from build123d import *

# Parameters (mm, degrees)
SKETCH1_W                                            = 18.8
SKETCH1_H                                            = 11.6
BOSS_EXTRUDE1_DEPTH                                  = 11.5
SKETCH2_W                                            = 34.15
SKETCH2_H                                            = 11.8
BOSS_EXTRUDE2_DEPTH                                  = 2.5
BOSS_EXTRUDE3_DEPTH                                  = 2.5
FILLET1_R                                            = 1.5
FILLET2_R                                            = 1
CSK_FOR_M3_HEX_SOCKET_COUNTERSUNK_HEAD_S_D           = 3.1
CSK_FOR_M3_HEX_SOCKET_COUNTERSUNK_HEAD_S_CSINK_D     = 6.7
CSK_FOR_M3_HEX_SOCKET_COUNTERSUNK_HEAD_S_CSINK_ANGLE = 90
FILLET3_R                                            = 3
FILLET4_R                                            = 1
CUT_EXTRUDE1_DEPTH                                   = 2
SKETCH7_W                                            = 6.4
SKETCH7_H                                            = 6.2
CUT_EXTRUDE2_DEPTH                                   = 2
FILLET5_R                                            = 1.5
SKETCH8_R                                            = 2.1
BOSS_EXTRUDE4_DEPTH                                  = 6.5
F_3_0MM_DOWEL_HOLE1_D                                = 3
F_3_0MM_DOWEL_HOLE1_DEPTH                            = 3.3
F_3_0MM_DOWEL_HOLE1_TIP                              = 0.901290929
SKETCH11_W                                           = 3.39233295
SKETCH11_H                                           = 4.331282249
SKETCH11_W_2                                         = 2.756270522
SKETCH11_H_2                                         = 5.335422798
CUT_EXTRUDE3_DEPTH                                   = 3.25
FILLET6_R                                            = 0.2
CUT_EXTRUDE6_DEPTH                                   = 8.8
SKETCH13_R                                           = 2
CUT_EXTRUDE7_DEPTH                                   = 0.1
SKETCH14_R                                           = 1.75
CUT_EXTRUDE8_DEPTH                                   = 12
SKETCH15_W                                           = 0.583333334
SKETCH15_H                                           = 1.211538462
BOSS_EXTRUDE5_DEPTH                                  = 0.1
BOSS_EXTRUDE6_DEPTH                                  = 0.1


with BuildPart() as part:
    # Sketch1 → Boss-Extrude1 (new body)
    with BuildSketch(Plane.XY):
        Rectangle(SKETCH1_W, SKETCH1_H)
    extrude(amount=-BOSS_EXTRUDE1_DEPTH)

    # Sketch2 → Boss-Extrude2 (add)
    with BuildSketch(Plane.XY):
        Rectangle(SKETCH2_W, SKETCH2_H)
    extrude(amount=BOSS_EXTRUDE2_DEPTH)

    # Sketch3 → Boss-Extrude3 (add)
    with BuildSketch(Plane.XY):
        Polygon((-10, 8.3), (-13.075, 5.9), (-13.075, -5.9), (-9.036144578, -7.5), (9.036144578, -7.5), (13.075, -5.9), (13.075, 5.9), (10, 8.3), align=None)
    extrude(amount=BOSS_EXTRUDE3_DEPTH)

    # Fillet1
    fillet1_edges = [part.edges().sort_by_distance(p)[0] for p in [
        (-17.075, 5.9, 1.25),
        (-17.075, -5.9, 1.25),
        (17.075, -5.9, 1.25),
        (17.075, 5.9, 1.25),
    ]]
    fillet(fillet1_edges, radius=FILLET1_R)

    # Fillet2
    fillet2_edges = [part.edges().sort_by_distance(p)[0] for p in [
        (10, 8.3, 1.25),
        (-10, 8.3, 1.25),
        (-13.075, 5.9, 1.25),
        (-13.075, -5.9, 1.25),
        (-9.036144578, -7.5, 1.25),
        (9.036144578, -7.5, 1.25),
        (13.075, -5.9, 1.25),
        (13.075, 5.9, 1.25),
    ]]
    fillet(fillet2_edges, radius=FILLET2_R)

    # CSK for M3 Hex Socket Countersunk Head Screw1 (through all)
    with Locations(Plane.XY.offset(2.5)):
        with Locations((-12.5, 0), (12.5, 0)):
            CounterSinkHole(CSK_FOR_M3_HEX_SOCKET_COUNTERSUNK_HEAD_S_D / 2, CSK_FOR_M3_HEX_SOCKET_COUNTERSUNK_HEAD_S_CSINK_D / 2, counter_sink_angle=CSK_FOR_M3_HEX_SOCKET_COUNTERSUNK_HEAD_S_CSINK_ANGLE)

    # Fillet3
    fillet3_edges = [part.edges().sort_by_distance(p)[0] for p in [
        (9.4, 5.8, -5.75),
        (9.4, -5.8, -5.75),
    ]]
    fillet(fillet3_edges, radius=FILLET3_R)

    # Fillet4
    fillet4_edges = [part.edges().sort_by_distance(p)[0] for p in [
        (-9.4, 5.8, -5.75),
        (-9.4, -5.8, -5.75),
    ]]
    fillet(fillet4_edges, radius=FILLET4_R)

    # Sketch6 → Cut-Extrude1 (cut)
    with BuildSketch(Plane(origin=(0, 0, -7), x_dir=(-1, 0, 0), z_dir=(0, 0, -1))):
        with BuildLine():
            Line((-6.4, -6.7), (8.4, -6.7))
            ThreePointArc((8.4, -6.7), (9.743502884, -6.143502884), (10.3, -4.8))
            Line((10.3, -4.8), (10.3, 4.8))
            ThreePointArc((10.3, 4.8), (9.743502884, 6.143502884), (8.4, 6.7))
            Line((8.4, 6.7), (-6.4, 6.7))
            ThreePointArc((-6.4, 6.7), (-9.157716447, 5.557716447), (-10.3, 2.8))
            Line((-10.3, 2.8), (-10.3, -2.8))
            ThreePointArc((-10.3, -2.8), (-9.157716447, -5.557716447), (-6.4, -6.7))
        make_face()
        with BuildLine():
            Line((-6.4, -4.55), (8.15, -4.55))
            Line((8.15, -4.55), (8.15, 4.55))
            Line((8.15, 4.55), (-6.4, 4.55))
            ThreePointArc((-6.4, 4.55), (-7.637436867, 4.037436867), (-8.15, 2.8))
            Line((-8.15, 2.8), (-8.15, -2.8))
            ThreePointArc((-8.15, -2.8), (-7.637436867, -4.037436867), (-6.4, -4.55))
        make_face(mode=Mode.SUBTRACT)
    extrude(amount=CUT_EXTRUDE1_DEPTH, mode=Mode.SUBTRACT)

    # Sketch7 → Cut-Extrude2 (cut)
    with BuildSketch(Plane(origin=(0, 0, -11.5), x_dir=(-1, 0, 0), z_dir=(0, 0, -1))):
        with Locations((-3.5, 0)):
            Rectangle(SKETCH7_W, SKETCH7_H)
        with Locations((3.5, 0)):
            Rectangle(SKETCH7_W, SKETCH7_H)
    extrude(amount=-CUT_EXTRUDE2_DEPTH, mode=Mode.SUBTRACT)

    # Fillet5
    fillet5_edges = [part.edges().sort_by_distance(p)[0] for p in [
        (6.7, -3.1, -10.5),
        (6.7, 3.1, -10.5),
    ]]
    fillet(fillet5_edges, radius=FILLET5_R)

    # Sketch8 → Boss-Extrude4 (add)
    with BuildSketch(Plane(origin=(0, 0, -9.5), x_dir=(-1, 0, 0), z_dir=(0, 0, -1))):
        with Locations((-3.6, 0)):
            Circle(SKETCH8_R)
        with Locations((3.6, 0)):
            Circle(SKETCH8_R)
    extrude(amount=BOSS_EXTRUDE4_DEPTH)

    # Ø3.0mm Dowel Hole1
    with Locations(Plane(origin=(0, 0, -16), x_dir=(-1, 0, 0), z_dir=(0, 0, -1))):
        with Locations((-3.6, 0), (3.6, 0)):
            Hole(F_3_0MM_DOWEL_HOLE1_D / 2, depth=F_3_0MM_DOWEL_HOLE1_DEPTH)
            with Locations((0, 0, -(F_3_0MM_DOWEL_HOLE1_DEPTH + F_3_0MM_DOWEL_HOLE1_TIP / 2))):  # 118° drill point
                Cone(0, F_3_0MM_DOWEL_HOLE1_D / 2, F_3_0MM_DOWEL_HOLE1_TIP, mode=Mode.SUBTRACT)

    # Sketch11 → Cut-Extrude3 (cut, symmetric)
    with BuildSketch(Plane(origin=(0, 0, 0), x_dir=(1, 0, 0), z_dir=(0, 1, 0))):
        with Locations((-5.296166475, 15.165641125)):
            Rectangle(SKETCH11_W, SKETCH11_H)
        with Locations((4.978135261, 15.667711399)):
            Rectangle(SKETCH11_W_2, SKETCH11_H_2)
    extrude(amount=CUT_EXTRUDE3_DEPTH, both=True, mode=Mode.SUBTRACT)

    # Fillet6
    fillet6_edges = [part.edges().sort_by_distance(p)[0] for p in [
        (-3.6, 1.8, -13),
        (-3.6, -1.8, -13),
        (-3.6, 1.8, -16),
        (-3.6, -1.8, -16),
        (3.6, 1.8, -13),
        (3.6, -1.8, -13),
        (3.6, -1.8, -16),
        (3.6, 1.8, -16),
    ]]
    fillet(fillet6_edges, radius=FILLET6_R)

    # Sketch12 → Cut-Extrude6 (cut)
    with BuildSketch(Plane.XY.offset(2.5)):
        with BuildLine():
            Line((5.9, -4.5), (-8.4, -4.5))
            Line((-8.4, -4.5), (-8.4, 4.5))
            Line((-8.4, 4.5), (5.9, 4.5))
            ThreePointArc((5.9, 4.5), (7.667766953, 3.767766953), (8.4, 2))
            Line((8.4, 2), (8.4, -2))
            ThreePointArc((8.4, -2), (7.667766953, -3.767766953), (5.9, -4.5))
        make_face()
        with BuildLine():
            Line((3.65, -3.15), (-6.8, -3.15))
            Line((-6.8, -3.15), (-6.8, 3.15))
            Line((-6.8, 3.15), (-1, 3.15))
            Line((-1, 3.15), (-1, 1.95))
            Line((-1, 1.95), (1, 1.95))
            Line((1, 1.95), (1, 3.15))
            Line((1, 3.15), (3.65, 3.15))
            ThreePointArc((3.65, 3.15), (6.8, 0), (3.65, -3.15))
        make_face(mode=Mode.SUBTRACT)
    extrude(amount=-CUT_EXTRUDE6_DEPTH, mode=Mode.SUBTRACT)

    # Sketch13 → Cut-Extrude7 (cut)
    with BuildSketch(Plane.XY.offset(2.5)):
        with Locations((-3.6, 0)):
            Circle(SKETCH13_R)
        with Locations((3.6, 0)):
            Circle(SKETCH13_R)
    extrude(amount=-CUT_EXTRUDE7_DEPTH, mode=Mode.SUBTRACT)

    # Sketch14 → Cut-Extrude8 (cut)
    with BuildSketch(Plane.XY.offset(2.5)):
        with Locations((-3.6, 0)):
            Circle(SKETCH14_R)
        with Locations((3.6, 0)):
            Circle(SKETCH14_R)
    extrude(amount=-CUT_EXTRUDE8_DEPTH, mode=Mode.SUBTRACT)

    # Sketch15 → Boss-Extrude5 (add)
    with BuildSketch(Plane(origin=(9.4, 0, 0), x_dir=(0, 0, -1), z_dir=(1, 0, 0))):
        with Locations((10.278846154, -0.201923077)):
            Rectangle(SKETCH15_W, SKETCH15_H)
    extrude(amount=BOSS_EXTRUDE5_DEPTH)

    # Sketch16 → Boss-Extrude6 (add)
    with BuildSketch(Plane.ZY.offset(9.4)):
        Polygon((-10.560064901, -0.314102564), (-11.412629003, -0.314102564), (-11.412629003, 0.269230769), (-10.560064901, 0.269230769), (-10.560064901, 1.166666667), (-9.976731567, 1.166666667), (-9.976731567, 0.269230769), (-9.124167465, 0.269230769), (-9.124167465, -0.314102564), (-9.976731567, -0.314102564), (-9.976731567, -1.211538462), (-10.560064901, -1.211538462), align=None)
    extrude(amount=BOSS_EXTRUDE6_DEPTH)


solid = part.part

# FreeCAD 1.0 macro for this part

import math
import FreeCAD as App
import Part
import Sketcher
Q = App.Units.Quantity


def edges_at(feature, points):
    """Names of the edges that pass closest to the given points."""
    edges = feature.Shape.Edges
    near = lambda p: min(range(len(edges)), key=lambda i: edges[i].distToShape(Part.Vertex(*p))[0])
    return sorted({f"Edge{near(p) + 1}" for p in points})


def add_polygon(sketch, points):
    """Adds a closed chain of lines whose ends are joined by coincident constraints."""
    first, n = sketch.GeometryCount, len(points)
    for a, b in zip(points, points[1:] + points[:1]):
        sketch.addGeometry(Part.LineSegment(App.Vector(*a, 0), App.Vector(*b, 0)), False)
    for i in range(n):
        sketch.addConstraint(Sketcher.Constraint("Coincident", first + i, 2, first + (i + 1) % n, 1))

doc = App.newDocument("Part")
params = doc.addObject("Spreadsheet::Sheet", "Params")
for row, (alias, value) in enumerate([
    ("sketch1_width", "18.8 mm"),
    ("sketch1_height", "11.6 mm"),
    ("pad1_length", "11.5 mm"),
    ("sketch2_height", "11.8 mm"),
    ("sketch2_width", "34.15 mm"),
    ("pad2_length", "2.5 mm"),
    ("sketch3_width", "20 mm"),
    ("sketch3_height", "11.8 mm"),
    ("pad3_length", "2.5 mm"),
    ("fillet_radius", "1.5 mm"),
    ("fillet2_radius", "1 mm"),
    ("sketch4_diameter", "3.1 mm"),
    ("hole_diameter", "3.1 mm"),
    ("hole_csink_diameter", "6.7 mm"),
    ("fillet3_radius", "3 mm"),
    ("fillet4_radius", "1 mm"),
    ("sketch5_radius", "1.9 mm"),
    ("sketch5_radius2", "3.9 mm"),
    ("sketch5_radius3", "1.75 mm"),
    ("sketch5_width", "14.8 mm"),
    ("sketch5_height", "9.6 mm"),
    ("pocket1_length", "2 mm"),
    ("sketch6_width", "6.4 mm"),
    ("sketch6_height", "6.2 mm"),
    ("pocket2_length", "2 mm"),
    ("fillet5_radius", "1.5 mm"),
    ("sketch7_diameter", "4.2 mm"),
    ("pad4_length", "6.5 mm"),
    ("sketch8_diameter", "3 mm"),
    ("hole2_diameter", "3 mm"),
    ("hole2_depth", "3.3 mm"),
    ("pocket3_length", "6.5 mm"),
    ("fillet6_radius", "0.2 mm"),
    ("sketch10_radius", "2.5 mm"),
    ("sketch10_width", "2 mm"),
    ("sketch10_height", "4 mm"),
    ("sketch10_radius2", "3.15 mm"),
    ("sketch10_width2", "14.3 mm"),
    ("pocket4_length", "8.8 mm"),
    ("sketch11_diameter", "4 mm"),
    ("pocket5_length", "0.1 mm"),
    ("sketch12_diameter", "3.5 mm"),
    ("pocket6_length", "12 mm"),
    ("pad5_length", "0.1 mm"),
    ("pad6_length", "0.1 mm"),
], start=1):
    params.set(f"A{row}", alias)
    params.set(f"B{row}", "=" + value)
    params.setAlias(f"B{row}", alias)

body = doc.addObject("PartDesign::Body", "Body")

sketch1 = body.newObject("Sketcher::SketchObject", "Sketch")
sketch1.AttachmentSupport = (doc.getObject("XY_Plane"), [""])
sketch1.MapMode = "FlatFace"
add_polygon(sketch1, [(-9.4, 5.8), (-9.4, -5.8), (9.4, -5.8), (9.4, 5.8)])
sketch1.addConstraint([
    Sketcher.Constraint("Vertical", 0),
    Sketcher.Constraint("Horizontal", 1),
    Sketcher.Constraint("Vertical", 2),
    Sketcher.Constraint("Horizontal", 3),
    Sketcher.Constraint("Symmetric", 0, 2, 2, 2, -1, 1),
    Sketcher.Constraint("DistanceX", 1, 1, 1, 2, Q("18.8 mm")),
    Sketcher.Constraint("DistanceY", 0, 2, 0, 1, Q("11.6 mm")),
])
sketch1.setExpression("Constraints[9]", "Params.sketch1_width")
sketch1.setExpression("Constraints[10]", "Params.sketch1_height")
pad1 = body.newObject("PartDesign::Pad", "Pad")
pad1.Profile = sketch1
pad1.setExpression("Length", "Params.pad1_length")
pad1.Reversed = True

sketch2 = body.newObject("Sketcher::SketchObject", "Sketch001")
sketch2.AttachmentSupport = (doc.getObject("XY_Plane"), [""])
sketch2.MapMode = "FlatFace"
add_polygon(sketch2, [(-17.075, 5.9), (-17.075, -5.9), (17.075, -5.9), (17.075, 5.9)])
sketch2.addConstraint([
    Sketcher.Constraint("Vertical", 0),
    Sketcher.Constraint("Horizontal", 1),
    Sketcher.Constraint("Vertical", 2),
    Sketcher.Constraint("Horizontal", 3),
    Sketcher.Constraint("Symmetric", 0, 2, 2, 2, -1, 1),
    Sketcher.Constraint("DistanceY", 0, 2, 0, 1, Q("11.8 mm")),
    Sketcher.Constraint("DistanceX", 1, 1, 1, 2, Q("34.15 mm")),
])
sketch2.setExpression("Constraints[9]", "Params.sketch2_height")
sketch2.setExpression("Constraints[10]", "Params.sketch2_width")
pad2 = body.newObject("PartDesign::Pad", "Pad001")
pad2.Profile = sketch2
pad2.setExpression("Length", "Params.pad2_length")

sketch3 = body.newObject("Sketcher::SketchObject", "Sketch002")
sketch3.AttachmentSupport = (doc.getObject("XY_Plane"), [""])
sketch3.MapMode = "FlatFace"
add_polygon(sketch3, [(-10, 8.3), (-13.075, 5.9), (-13.075, -5.9), (-9.036145, -7.5), (9.036145, -7.5), (13.075, -5.9), (13.075, 5.9), (10, 8.3)])
sketch3.addConstraint([
    Sketcher.Constraint("Vertical", 1),
    Sketcher.Constraint("Horizontal", 3),
    Sketcher.Constraint("Vertical", 5),
    Sketcher.Constraint("Horizontal", 7),
    Sketcher.Constraint("Symmetric", 0, 2, 4, 2, -1, 1),
    Sketcher.Constraint("Horizontal", 1, 2, 4, 2),
    Sketcher.Constraint("Horizontal", 0, 2, 5, 2),
    Sketcher.Constraint("Equal", 2, 4),
    Sketcher.Constraint("Equal", 0, 6),
    Sketcher.Constraint("DistanceX", 7, 2, 7, 1, Q("20 mm")),
    Sketcher.Constraint("DistanceY", 1, 2, 1, 1, Q("11.8 mm")),
    Sketcher.Constraint("DistanceY", 2, 2, -1, 1, Q("7.5 mm")),
    Sketcher.Constraint("DistanceY", -1, 1, 6, 2, Q("8.3 mm")),
    Sketcher.Constraint("DistanceX", 1, 2, 4, 2, Q("26.15 mm")),
    Sketcher.Constraint("DistanceX", 3, 1, 3, 2, Q("18.072289 mm")),
])
sketch3.setExpression("Constraints[17]", "Params.sketch3_width")
sketch3.setExpression("Constraints[18]", "Params.sketch3_height")
pad3 = body.newObject("PartDesign::Pad", "Pad002")
pad3.Profile = sketch3
pad3.setExpression("Length", "Params.pad3_length")
doc.recompute()

fillet = body.newObject("PartDesign::Fillet", "Fillet")
fillet.Base = (pad3, edges_at(pad3, [
    (-17.075, 5.9, 1.25),
    (-17.075, -5.9, 1.25),
    (17.075, -5.9, 1.25),
    (17.075, 5.9, 1.25),
]))
fillet.setExpression("Radius", "Params.fillet_radius")
doc.recompute()

fillet2 = body.newObject("PartDesign::Fillet", "Fillet001")
fillet2.Base = (fillet, edges_at(fillet, [
    (10, 8.3, 1.25),
    (-10, 8.3, 1.25),
    (-13.075, 5.9, 1.25),
    (-13.075, -5.9, 1.25),
    (-9.036, -7.5, 1.25),
    (9.036, -7.5, 1.25),
    (13.075, -5.9, 1.25),
    (13.075, 5.9, 1.25),
]))
fillet2.setExpression("Radius", "Params.fillet2_radius")

sketch4 = body.newObject("Sketcher::SketchObject", "Sketch003")
sketch4.AttachmentSupport = (doc.getObject("XY_Plane"), [""])
sketch4.MapMode = "FlatFace"
sketch4.AttachmentOffset = App.Placement(App.Vector(0, 0, 2.5), App.Rotation())
sketch4.addGeometry([
    Part.Circle(App.Vector(-12.5, 0, 0), App.Vector(0, 0, 1), 1.55),
    Part.Circle(App.Vector(12.5, 0, 0), App.Vector(0, 0, 1), 1.55),
], False)
sketch4.addConstraint([
    Sketcher.Constraint("Equal", 0, 1),
    Sketcher.Constraint("Symmetric", 0, 3, 1, 3, -1, 1),
    Sketcher.Constraint("PointOnObject", 0, 3, -1),
    Sketcher.Constraint("Diameter", 0, Q("3.1 mm")),
    Sketcher.Constraint("DistanceX", 0, 3, 1, 3, Q("25 mm")),
])
sketch4.setExpression("Constraints[3]", "Params.sketch4_diameter")
doc.recompute()
hole = body.newObject("PartDesign::Hole", "Hole")
hole.Profile = sketch4
hole.ThreadType = "None"
hole.setExpression("Diameter", "Params.hole_diameter")
hole.DepthType = "ThroughAll"
hole.HoleCutType = "Countersink"
hole.setExpression("HoleCutDiameter", "Params.hole_csink_diameter")
hole.HoleCutCountersinkAngle = 90
doc.recompute()

fillet3 = body.newObject("PartDesign::Fillet", "Fillet002")
fillet3.Base = (hole, edges_at(hole, [(9.4, 5.8, -5.75), (9.4, -5.8, -5.75)]))
fillet3.setExpression("Radius", "Params.fillet3_radius")
doc.recompute()

fillet4 = body.newObject("PartDesign::Fillet", "Fillet003")
fillet4.Base = (fillet3, edges_at(fillet3, [(-9.4, 5.8, -5.75), (-9.4, -5.8, -5.75)]))
fillet4.setExpression("Radius", "Params.fillet4_radius")

sketch5 = body.newObject("Sketcher::SketchObject", "Sketch004")
sketch5.AttachmentSupport = (doc.getObject("XY_Plane"), [""])
sketch5.MapMode = "FlatFace"
sketch5.AttachmentOffset = App.Placement(App.Vector(0, 0, -7), App.Rotation())
sketch5.addGeometry([
    Part.LineSegment(App.Vector(6.4, -6.7, 0), App.Vector(-8.4, -6.7, 0)),
    Part.ArcOfCircle(Part.Circle(App.Vector(-8.4, -4.8, 0), App.Vector(0, 0, 1), 1.9), math.radians(-180), math.radians(-90)),
    Part.LineSegment(App.Vector(-10.3, -4.8, 0), App.Vector(-10.3, 4.8, 0)),
    Part.ArcOfCircle(Part.Circle(App.Vector(-8.4, 4.8, 0), App.Vector(0, 0, 1), 1.9), math.radians(90), math.radians(180)),
    Part.LineSegment(App.Vector(-8.4, 6.7, 0), App.Vector(6.4, 6.7, 0)),
    Part.ArcOfCircle(Part.Circle(App.Vector(6.4, 2.8, 0), App.Vector(0, 0, 1), 3.9), math.radians(0), math.radians(90)),
    Part.LineSegment(App.Vector(10.3, 2.8, 0), App.Vector(10.3, -2.8, 0)),
    Part.ArcOfCircle(Part.Circle(App.Vector(6.4, -2.8, 0), App.Vector(0, 0, 1), 3.9), math.radians(-90), math.radians(0)),
    Part.LineSegment(App.Vector(-8.15, -4.55, 0), App.Vector(6.4, -4.55, 0)),
    Part.ArcOfCircle(Part.Circle(App.Vector(6.4, -2.8, 0), App.Vector(0, 0, 1), 1.75), math.radians(-90), math.radians(0)),
    Part.LineSegment(App.Vector(8.15, -2.8, 0), App.Vector(8.15, 2.8, 0)),
    Part.ArcOfCircle(Part.Circle(App.Vector(6.4, 2.8, 0), App.Vector(0, 0, 1), 1.75), math.radians(0), math.radians(90)),
    Part.LineSegment(App.Vector(6.4, 4.55, 0), App.Vector(-8.15, 4.55, 0)),
    Part.LineSegment(App.Vector(-8.15, 4.55, 0), App.Vector(-8.15, -4.55, 0)),
], False)
sketch5.addConstraint([
    Sketcher.Constraint("Tangent", 0, 2, 1, 2),
    Sketcher.Constraint("Tangent", 1, 1, 2, 1),
    Sketcher.Constraint("Tangent", 2, 2, 3, 2),
    Sketcher.Constraint("Tangent", 3, 1, 4, 1),
    Sketcher.Constraint("Tangent", 4, 2, 5, 2),
    Sketcher.Constraint("Tangent", 5, 1, 6, 1),
    Sketcher.Constraint("Tangent", 6, 2, 7, 2),
    Sketcher.Constraint("Tangent", 7, 1, 0, 1),
    Sketcher.Constraint("Tangent", 8, 2, 9, 1),
    Sketcher.Constraint("Tangent", 9, 2, 10, 1),
    Sketcher.Constraint("Tangent", 10, 2, 11, 1),
    Sketcher.Constraint("Tangent", 11, 2, 12, 1),
    Sketcher.Constraint("Coincident", 12, 2, 13, 1),
    Sketcher.Constraint("Coincident", 13, 2, 8, 1),
    Sketcher.Constraint("Horizontal", 0),
    Sketcher.Constraint("Vertical", 2),
    Sketcher.Constraint("Horizontal", 4),
    Sketcher.Constraint("Vertical", 6),
    Sketcher.Constraint("Horizontal", 8),
    Sketcher.Constraint("Vertical", 10),
    Sketcher.Constraint("Horizontal", 12),
    Sketcher.Constraint("Vertical", 13),
    Sketcher.Constraint("Coincident", 9, 3, 7, 3),
    Sketcher.Constraint("Coincident", 11, 3, 5, 3),
    Sketcher.Constraint("Equal", 1, 3),
    Sketcher.Constraint("Equal", 5, 7),
    Sketcher.Constraint("Radius", 1, Q("1.9 mm")),
    Sketcher.Constraint("Radius", 5, Q("3.9 mm")),
    Sketcher.Constraint("Radius", 9, Q("1.75 mm")),
    Sketcher.Constraint("DistanceX", 0, 2, 0, 1, Q("14.8 mm")),
    Sketcher.Constraint("DistanceY", 2, 1, 2, 2, Q("9.6 mm")),
    Sketcher.Constraint("DistanceX", 8, 1, 8, 2, Q("14.55 mm")),
    Sketcher.Constraint("DistanceX", 1, 3, -1, 1, Q("8.4 mm")),
    Sketcher.Constraint("DistanceY", 1, 3, -1, 1, Q("4.8 mm")),
])
sketch5.setExpression("Constraints[26]", "Params.sketch5_radius")
sketch5.setExpression("Constraints[27]", "Params.sketch5_radius2")
sketch5.setExpression("Constraints[28]", "Params.sketch5_radius3")
sketch5.setExpression("Constraints[29]", "Params.sketch5_width")
sketch5.setExpression("Constraints[30]", "Params.sketch5_height")
pocket1 = body.newObject("PartDesign::Pocket", "Pocket")
pocket1.Profile = sketch5
pocket1.setExpression("Length", "Params.pocket1_length")

sketch6 = body.newObject("Sketcher::SketchObject", "Sketch005")
sketch6.AttachmentSupport = (doc.getObject("XY_Plane"), [""])
sketch6.MapMode = "FlatFace"
sketch6.AttachmentOffset = App.Placement(App.Vector(0, 0, -11.5), App.Rotation())
add_polygon(sketch6, [(6.7, 3.1), (6.7, -3.1), (0.3, -3.1), (0.3, 3.1)])
add_polygon(sketch6, [(-0.3, 3.1), (-0.3, -3.1), (-6.7, -3.1), (-6.7, 3.1)])
sketch6.addConstraint([
    Sketcher.Constraint("Vertical", 0),
    Sketcher.Constraint("Horizontal", 1),
    Sketcher.Constraint("Vertical", 2),
    Sketcher.Constraint("Horizontal", 3),
    Sketcher.Constraint("Vertical", 4),
    Sketcher.Constraint("Horizontal", 5),
    Sketcher.Constraint("Vertical", 6),
    Sketcher.Constraint("Horizontal", 7),
    Sketcher.Constraint("Symmetric", 2, 2, 4, 2, -1, 1),
    Sketcher.Constraint("Symmetric", 0, 2, 6, 2, -1, 1),
    Sketcher.Constraint("Horizontal", 1, 2, 4, 2),
    Sketcher.Constraint("DistanceX", 1, 2, 1, 1, Q("6.4 mm")),
    Sketcher.Constraint("DistanceY", 0, 2, 0, 1, Q("6.2 mm")),
    Sketcher.Constraint("DistanceX", 4, 2, 0, 2, Q("7 mm")),
])
sketch6.setExpression("Constraints[19]", "Params.sketch6_width")
sketch6.setExpression("Constraints[20]", "Params.sketch6_height")
pocket2 = body.newObject("PartDesign::Pocket", "Pocket001")
pocket2.Profile = sketch6
pocket2.setExpression("Length", "Params.pocket2_length")
pocket2.Reversed = True
doc.recompute()

fillet5 = body.newObject("PartDesign::Fillet", "Fillet004")
fillet5.Base = (pocket2, edges_at(pocket2, [(6.7, -3.1, -10.5), (6.7, 3.1, -10.5)]))
fillet5.setExpression("Radius", "Params.fillet5_radius")

sketch7 = body.newObject("Sketcher::SketchObject", "Sketch006")
sketch7.AttachmentSupport = (doc.getObject("XY_Plane"), [""])
sketch7.MapMode = "FlatFace"
sketch7.AttachmentOffset = App.Placement(App.Vector(0, 0, -9.5), App.Rotation())
sketch7.addGeometry([
    Part.Circle(App.Vector(3.6, 0, 0), App.Vector(0, 0, 1), 2.1),
    Part.Circle(App.Vector(-3.6, 0, 0), App.Vector(0, 0, 1), 2.1),
], False)
sketch7.addConstraint([
    Sketcher.Constraint("Equal", 0, 1),
    Sketcher.Constraint("Symmetric", 0, 3, 1, 3, -1, 1),
    Sketcher.Constraint("PointOnObject", 0, 3, -1),
    Sketcher.Constraint("Diameter", 0, Q("4.2 mm")),
    Sketcher.Constraint("DistanceX", -1, 1, 0, 3, Q("3.6 mm")),
])
sketch7.setExpression("Constraints[3]", "Params.sketch7_diameter")
pad4 = body.newObject("PartDesign::Pad", "Pad003")
pad4.Profile = sketch7
pad4.setExpression("Length", "Params.pad4_length")
pad4.Reversed = True

sketch8 = body.newObject("Sketcher::SketchObject", "Sketch007")
sketch8.AttachmentSupport = (doc.getObject("XY_Plane"), [""])
sketch8.MapMode = "FlatFace"
sketch8.AttachmentOffset = App.Placement(App.Vector(0, 0, -16), App.Rotation())
sketch8.addGeometry([
    Part.Circle(App.Vector(3.6, 0, 0), App.Vector(0, 0, 1), 1.5),
    Part.Circle(App.Vector(-3.6, 0, 0), App.Vector(0, 0, 1), 1.5),
], False)
sketch8.addConstraint([
    Sketcher.Constraint("Equal", 0, 1),
    Sketcher.Constraint("Symmetric", 0, 3, 1, 3, -1, 1),
    Sketcher.Constraint("PointOnObject", 0, 3, -1),
    Sketcher.Constraint("Diameter", 0, Q("3 mm")),
    Sketcher.Constraint("DistanceX", -1, 1, 0, 3, Q("3.6 mm")),
])
sketch8.setExpression("Constraints[3]", "Params.sketch8_diameter")
doc.recompute()
hole2 = body.newObject("PartDesign::Hole", "Hole001")
hole2.Profile = sketch8
hole2.ThreadType = "None"
hole2.setExpression("Diameter", "Params.hole2_diameter")
hole2.DepthType = "Dimension"
hole2.setExpression("Depth", "Params.hole2_depth")
hole2.DrillPoint = "Angled"
hole2.DrillPointAngle = 118
hole2.Reversed = True

sketch9 = body.newObject("Sketcher::SketchObject", "Sketch008")
sketch9.AttachmentSupport = (doc.getObject("XZ_Plane"), [""])
sketch9.MapMode = "FlatFace"
add_polygon(sketch9, [(-6.992333, -17.331282), (-6.992333, -13), (-3.6, -13), (-3.6, -17.331282)])
add_polygon(sketch9, [(3.6, -18.335423), (3.6, -13), (6.356271, -13), (6.356271, -18.335423)])
sketch9.addConstraint([
    Sketcher.Constraint("Vertical", 0),
    Sketcher.Constraint("Horizontal", 1),
    Sketcher.Constraint("Vertical", 2),
    Sketcher.Constraint("Horizontal", 3),
    Sketcher.Constraint("Vertical", 4),
    Sketcher.Constraint("Horizontal", 5),
    Sketcher.Constraint("Vertical", 6),
    Sketcher.Constraint("Horizontal", 7),
    Sketcher.Constraint("Symmetric", 1, 2, 4, 2, -2),
    Sketcher.Constraint("DistanceY", 0, 2, -1, 1, Q("13 mm")),
    Sketcher.Constraint("DistanceX", 1, 2, -1, 1, Q("3.6 mm")),
    Sketcher.Constraint("DistanceX", 5, 1, 5, 2, Q("2.756271 mm")),
    Sketcher.Constraint("DistanceX", 1, 1, 1, 2, Q("3.392333 mm")),
    Sketcher.Constraint("DistanceY", 0, 1, 0, 2, Q("4.331282 mm")),
    Sketcher.Constraint("DistanceY", 4, 1, 4, 2, Q("5.335423 mm")),
])
pocket3 = body.newObject("PartDesign::Pocket", "Pocket002")
pocket3.Profile = sketch9
pocket3.setExpression("Length", "Params.pocket3_length")
pocket3.Midplane = True
doc.recompute()

fillet6 = body.newObject("PartDesign::Fillet", "Fillet005")
fillet6.Base = (pocket3, edges_at(pocket3, [
    (-3.6, 1.8, -13),
    (-3.6, -1.8, -13),
    (-3.6, 1.8, -16),
    (-3.6, -1.8, -16),
    (3.6, 1.8, -13),
    (3.6, -1.8, -13),
    (3.6, -1.8, -16),
    (3.6, 1.8, -16),
]))
fillet6.setExpression("Radius", "Params.fillet6_radius")

sketch10 = body.newObject("Sketcher::SketchObject", "Sketch009")
sketch10.AttachmentSupport = (doc.getObject("XY_Plane"), [""])
sketch10.MapMode = "FlatFace"
sketch10.AttachmentOffset = App.Placement(App.Vector(0, 0, 2.5), App.Rotation())
sketch10.addGeometry([
    Part.LineSegment(App.Vector(-8.4, -4.5, 0), App.Vector(5.9, -4.5, 0)),
    Part.ArcOfCircle(Part.Circle(App.Vector(5.9, -2, 0), App.Vector(0, 0, 1), 2.5), math.radians(-90), math.radians(0)),
    Part.LineSegment(App.Vector(8.4, -2, 0), App.Vector(8.4, 2, 0)),
    Part.ArcOfCircle(Part.Circle(App.Vector(5.9, 2, 0), App.Vector(0, 0, 1), 2.5), math.radians(0), math.radians(90)),
    Part.LineSegment(App.Vector(5.9, 4.5, 0), App.Vector(-8.4, 4.5, 0)),
    Part.LineSegment(App.Vector(-8.4, 4.5, 0), App.Vector(-8.4, -4.5, 0)),
    Part.LineSegment(App.Vector(3.65, -3.15, 0), App.Vector(-6.8, -3.15, 0)),
    Part.LineSegment(App.Vector(-6.8, -3.15, 0), App.Vector(-6.8, 3.15, 0)),
    Part.LineSegment(App.Vector(-6.8, 3.15, 0), App.Vector(-1, 3.15, 0)),
    Part.LineSegment(App.Vector(-1, 3.15, 0), App.Vector(-1, 1.95, 0)),
    Part.LineSegment(App.Vector(-1, 1.95, 0), App.Vector(1, 1.95, 0)),
    Part.LineSegment(App.Vector(1, 1.95, 0), App.Vector(1, 3.15, 0)),
    Part.LineSegment(App.Vector(1, 3.15, 0), App.Vector(3.65, 3.15, 0)),
    Part.ArcOfCircle(Part.Circle(App.Vector(3.65, 0, 0), App.Vector(0, 0, 1), 3.15), math.radians(-90), math.radians(90)),
], False)
sketch10.addConstraint([
    Sketcher.Constraint("Tangent", 0, 2, 1, 1),
    Sketcher.Constraint("Tangent", 1, 2, 2, 1),
    Sketcher.Constraint("Tangent", 2, 2, 3, 1),
    Sketcher.Constraint("Tangent", 3, 2, 4, 1),
    Sketcher.Constraint("Coincident", 4, 2, 5, 1),
    Sketcher.Constraint("Coincident", 5, 2, 0, 1),
    Sketcher.Constraint("Coincident", 6, 2, 7, 1),
    Sketcher.Constraint("Coincident", 7, 2, 8, 1),
    Sketcher.Constraint("Coincident", 8, 2, 9, 1),
    Sketcher.Constraint("Coincident", 9, 2, 10, 1),
    Sketcher.Constraint("Coincident", 10, 2, 11, 1),
    Sketcher.Constraint("Coincident", 11, 2, 12, 1),
    Sketcher.Constraint("Tangent", 12, 2, 13, 2),
    Sketcher.Constraint("Tangent", 13, 1, 6, 1),
    Sketcher.Constraint("Horizontal", 0),
    Sketcher.Constraint("Vertical", 2),
    Sketcher.Constraint("Horizontal", 4),
    Sketcher.Constraint("Vertical", 5),
    Sketcher.Constraint("Horizontal", 6),
    Sketcher.Constraint("Vertical", 7),
    Sketcher.Constraint("Horizontal", 8),
    Sketcher.Constraint("Vertical", 9),
    Sketcher.Constraint("Horizontal", 10),
    Sketcher.Constraint("Vertical", 11),
    Sketcher.Constraint("Horizontal", 12),
    Sketcher.Constraint("Equal", 1, 3),
    Sketcher.Constraint("Symmetric", 8, 2, 11, 2, -2),
    Sketcher.Constraint("PointOnObject", 13, 3, -1),
    Sketcher.Constraint("Radius", 1, Q("2.5 mm")),
    Sketcher.Constraint("DistanceX", 10, 1, 10, 2, Q("2 mm")),
    Sketcher.Constraint("DistanceY", 2, 1, 2, 2, Q("4 mm")),
    Sketcher.Constraint("Radius", 13, Q("3.15 mm")),
    Sketcher.Constraint("DistanceX", 0, 1, 0, 2, Q("14.3 mm")),
    Sketcher.Constraint("DistanceX", 8, 1, 8, 2, Q("5.8 mm")),
    Sketcher.Constraint("DistanceY", 9, 2, 9, 1, Q("1.2 mm")),
    Sketcher.Constraint("DistanceY", 1, 3, -1, 1, Q("2 mm")),
    Sketcher.Constraint("DistanceX", 6, 2, 6, 1, Q("10.45 mm")),
    Sketcher.Constraint("DistanceX", -1, 1, 1, 3, Q("5.9 mm")),
])
sketch10.setExpression("Constraints[28]", "Params.sketch10_radius")
sketch10.setExpression("Constraints[29]", "Params.sketch10_width")
sketch10.setExpression("Constraints[30]", "Params.sketch10_height")
sketch10.setExpression("Constraints[31]", "Params.sketch10_radius2")
sketch10.setExpression("Constraints[32]", "Params.sketch10_width2")
pocket4 = body.newObject("PartDesign::Pocket", "Pocket003")
pocket4.Profile = sketch10
pocket4.setExpression("Length", "Params.pocket4_length")

sketch11 = body.newObject("Sketcher::SketchObject", "Sketch010")
sketch11.AttachmentSupport = (doc.getObject("XY_Plane"), [""])
sketch11.MapMode = "FlatFace"
sketch11.AttachmentOffset = App.Placement(App.Vector(0, 0, 2.5), App.Rotation())
sketch11.addGeometry([
    Part.Circle(App.Vector(-3.6, 0, 0), App.Vector(0, 0, 1), 2),
    Part.Circle(App.Vector(3.6, 0, 0), App.Vector(0, 0, 1), 2),
], False)
sketch11.addConstraint([
    Sketcher.Constraint("Equal", 0, 1),
    Sketcher.Constraint("Symmetric", 0, 3, 1, 3, -1, 1),
    Sketcher.Constraint("PointOnObject", 0, 3, -1),
    Sketcher.Constraint("Diameter", 0, Q("4 mm")),
    Sketcher.Constraint("DistanceX", 0, 3, -1, 1, Q("3.6 mm")),
])
sketch11.setExpression("Constraints[3]", "Params.sketch11_diameter")
pocket5 = body.newObject("PartDesign::Pocket", "Pocket004")
pocket5.Profile = sketch11
pocket5.setExpression("Length", "Params.pocket5_length")

sketch12 = body.newObject("Sketcher::SketchObject", "Sketch011")
sketch12.AttachmentSupport = (doc.getObject("XY_Plane"), [""])
sketch12.MapMode = "FlatFace"
sketch12.AttachmentOffset = App.Placement(App.Vector(0, 0, 2.5), App.Rotation())
sketch12.addGeometry([
    Part.Circle(App.Vector(-3.6, 0, 0), App.Vector(0, 0, 1), 1.75),
    Part.Circle(App.Vector(3.6, 0, 0), App.Vector(0, 0, 1), 1.75),
], False)
sketch12.addConstraint([
    Sketcher.Constraint("Equal", 0, 1),
    Sketcher.Constraint("Symmetric", 0, 3, 1, 3, -1, 1),
    Sketcher.Constraint("PointOnObject", 0, 3, -1),
    Sketcher.Constraint("Diameter", 0, Q("3.5 mm")),
    Sketcher.Constraint("DistanceX", 0, 3, -1, 1, Q("3.6 mm")),
])
sketch12.setExpression("Constraints[3]", "Params.sketch12_diameter")
pocket6 = body.newObject("PartDesign::Pocket", "Pocket005")
pocket6.Profile = sketch12
pocket6.setExpression("Length", "Params.pocket6_length")

sketch13 = body.newObject("Sketcher::SketchObject", "Sketch012")
sketch13.AttachmentSupport = (doc.getObject("YZ_Plane"), [""])
sketch13.MapMode = "FlatFace"
sketch13.AttachmentOffset = App.Placement(App.Vector(0, 0, 9.4), App.Rotation())
add_polygon(sketch13, [(0.403846, -9.987179), (-0.807692, -9.987179), (-0.807692, -10.570513), (0.403846, -10.570513)])
sketch13.addConstraint([
    Sketcher.Constraint("Horizontal", 0),
    Sketcher.Constraint("Vertical", 1),
    Sketcher.Constraint("Horizontal", 2),
    Sketcher.Constraint("Vertical", 3),
    Sketcher.Constraint("DistanceX", 0, 2, 0, 1, Q("1.211538 mm")),
    Sketcher.Constraint("DistanceY", 1, 2, 1, 1, Q("0.583333 mm")),
    Sketcher.Constraint("DistanceY", 0, 2, -1, 1, Q("9.987179 mm")),
    Sketcher.Constraint("DistanceX", 0, 2, -1, 1, Q("0.807692 mm")),
])
pad5 = body.newObject("PartDesign::Pad", "Pad004")
pad5.Profile = sketch13
pad5.setExpression("Length", "Params.pad5_length")

sketch14 = body.newObject("Sketcher::SketchObject", "Sketch013")
sketch14.AttachmentSupport = (doc.getObject("YZ_Plane"), [""])
sketch14.MapMode = "FlatFace"
sketch14.AttachmentOffset = App.Placement(App.Vector(0, 0, -9.4), App.Rotation())
add_polygon(sketch14, [(-0.314103, -11.412629), (-0.314103, -10.560065), (-1.211538, -10.560065), (-1.211538, -9.976732), (-0.314103, -9.976732), (-0.314103, -9.124167), (0.269231, -9.124167), (0.269231, -9.976732), (1.166667, -9.976732), (1.166667, -10.560065), (0.269231, -10.560065), (0.269231, -11.412629)])
sketch14.addConstraint([
    Sketcher.Constraint("Vertical", 0),
    Sketcher.Constraint("Horizontal", 1),
    Sketcher.Constraint("Vertical", 2),
    Sketcher.Constraint("Horizontal", 3),
    Sketcher.Constraint("Vertical", 4),
    Sketcher.Constraint("Horizontal", 5),
    Sketcher.Constraint("Vertical", 6),
    Sketcher.Constraint("Horizontal", 7),
    Sketcher.Constraint("Vertical", 8),
    Sketcher.Constraint("Horizontal", 9),
    Sketcher.Constraint("Vertical", 10),
    Sketcher.Constraint("Horizontal", 11),
    Sketcher.Constraint("Horizontal", 3, 2, 6, 2),
    Sketcher.Constraint("Horizontal", 1, 2, 8, 2),
    Sketcher.Constraint("Vertical", 0, 2, 3, 2),
    Sketcher.Constraint("Vertical", 6, 2, 9, 2),
    Sketcher.Constraint("Equal", 3, 7),
    Sketcher.Constraint("Equal", 11, 2),
    Sketcher.Constraint("Equal", 0, 4),
    Sketcher.Constraint("DistanceX", 1, 2, 1, 1, Q("0.897436 mm")),
    Sketcher.Constraint("DistanceX", 5, 1, 5, 2, Q("0.583333 mm")),
    Sketcher.Constraint("DistanceY", 0, 1, 0, 2, Q("0.852564 mm")),
    Sketcher.Constraint("DistanceX", 1, 2, -1, 1, Q("1.211538 mm")),
    Sketcher.Constraint("DistanceY", 2, 2, -1, 1, Q("9.976732 mm")),
])
pad6 = body.newObject("PartDesign::Pad", "Pad005")
pad6.Profile = sketch14
pad6.setExpression("Length", "Params.pad6_length")
pad6.Reversed = True

doc.recompute()
